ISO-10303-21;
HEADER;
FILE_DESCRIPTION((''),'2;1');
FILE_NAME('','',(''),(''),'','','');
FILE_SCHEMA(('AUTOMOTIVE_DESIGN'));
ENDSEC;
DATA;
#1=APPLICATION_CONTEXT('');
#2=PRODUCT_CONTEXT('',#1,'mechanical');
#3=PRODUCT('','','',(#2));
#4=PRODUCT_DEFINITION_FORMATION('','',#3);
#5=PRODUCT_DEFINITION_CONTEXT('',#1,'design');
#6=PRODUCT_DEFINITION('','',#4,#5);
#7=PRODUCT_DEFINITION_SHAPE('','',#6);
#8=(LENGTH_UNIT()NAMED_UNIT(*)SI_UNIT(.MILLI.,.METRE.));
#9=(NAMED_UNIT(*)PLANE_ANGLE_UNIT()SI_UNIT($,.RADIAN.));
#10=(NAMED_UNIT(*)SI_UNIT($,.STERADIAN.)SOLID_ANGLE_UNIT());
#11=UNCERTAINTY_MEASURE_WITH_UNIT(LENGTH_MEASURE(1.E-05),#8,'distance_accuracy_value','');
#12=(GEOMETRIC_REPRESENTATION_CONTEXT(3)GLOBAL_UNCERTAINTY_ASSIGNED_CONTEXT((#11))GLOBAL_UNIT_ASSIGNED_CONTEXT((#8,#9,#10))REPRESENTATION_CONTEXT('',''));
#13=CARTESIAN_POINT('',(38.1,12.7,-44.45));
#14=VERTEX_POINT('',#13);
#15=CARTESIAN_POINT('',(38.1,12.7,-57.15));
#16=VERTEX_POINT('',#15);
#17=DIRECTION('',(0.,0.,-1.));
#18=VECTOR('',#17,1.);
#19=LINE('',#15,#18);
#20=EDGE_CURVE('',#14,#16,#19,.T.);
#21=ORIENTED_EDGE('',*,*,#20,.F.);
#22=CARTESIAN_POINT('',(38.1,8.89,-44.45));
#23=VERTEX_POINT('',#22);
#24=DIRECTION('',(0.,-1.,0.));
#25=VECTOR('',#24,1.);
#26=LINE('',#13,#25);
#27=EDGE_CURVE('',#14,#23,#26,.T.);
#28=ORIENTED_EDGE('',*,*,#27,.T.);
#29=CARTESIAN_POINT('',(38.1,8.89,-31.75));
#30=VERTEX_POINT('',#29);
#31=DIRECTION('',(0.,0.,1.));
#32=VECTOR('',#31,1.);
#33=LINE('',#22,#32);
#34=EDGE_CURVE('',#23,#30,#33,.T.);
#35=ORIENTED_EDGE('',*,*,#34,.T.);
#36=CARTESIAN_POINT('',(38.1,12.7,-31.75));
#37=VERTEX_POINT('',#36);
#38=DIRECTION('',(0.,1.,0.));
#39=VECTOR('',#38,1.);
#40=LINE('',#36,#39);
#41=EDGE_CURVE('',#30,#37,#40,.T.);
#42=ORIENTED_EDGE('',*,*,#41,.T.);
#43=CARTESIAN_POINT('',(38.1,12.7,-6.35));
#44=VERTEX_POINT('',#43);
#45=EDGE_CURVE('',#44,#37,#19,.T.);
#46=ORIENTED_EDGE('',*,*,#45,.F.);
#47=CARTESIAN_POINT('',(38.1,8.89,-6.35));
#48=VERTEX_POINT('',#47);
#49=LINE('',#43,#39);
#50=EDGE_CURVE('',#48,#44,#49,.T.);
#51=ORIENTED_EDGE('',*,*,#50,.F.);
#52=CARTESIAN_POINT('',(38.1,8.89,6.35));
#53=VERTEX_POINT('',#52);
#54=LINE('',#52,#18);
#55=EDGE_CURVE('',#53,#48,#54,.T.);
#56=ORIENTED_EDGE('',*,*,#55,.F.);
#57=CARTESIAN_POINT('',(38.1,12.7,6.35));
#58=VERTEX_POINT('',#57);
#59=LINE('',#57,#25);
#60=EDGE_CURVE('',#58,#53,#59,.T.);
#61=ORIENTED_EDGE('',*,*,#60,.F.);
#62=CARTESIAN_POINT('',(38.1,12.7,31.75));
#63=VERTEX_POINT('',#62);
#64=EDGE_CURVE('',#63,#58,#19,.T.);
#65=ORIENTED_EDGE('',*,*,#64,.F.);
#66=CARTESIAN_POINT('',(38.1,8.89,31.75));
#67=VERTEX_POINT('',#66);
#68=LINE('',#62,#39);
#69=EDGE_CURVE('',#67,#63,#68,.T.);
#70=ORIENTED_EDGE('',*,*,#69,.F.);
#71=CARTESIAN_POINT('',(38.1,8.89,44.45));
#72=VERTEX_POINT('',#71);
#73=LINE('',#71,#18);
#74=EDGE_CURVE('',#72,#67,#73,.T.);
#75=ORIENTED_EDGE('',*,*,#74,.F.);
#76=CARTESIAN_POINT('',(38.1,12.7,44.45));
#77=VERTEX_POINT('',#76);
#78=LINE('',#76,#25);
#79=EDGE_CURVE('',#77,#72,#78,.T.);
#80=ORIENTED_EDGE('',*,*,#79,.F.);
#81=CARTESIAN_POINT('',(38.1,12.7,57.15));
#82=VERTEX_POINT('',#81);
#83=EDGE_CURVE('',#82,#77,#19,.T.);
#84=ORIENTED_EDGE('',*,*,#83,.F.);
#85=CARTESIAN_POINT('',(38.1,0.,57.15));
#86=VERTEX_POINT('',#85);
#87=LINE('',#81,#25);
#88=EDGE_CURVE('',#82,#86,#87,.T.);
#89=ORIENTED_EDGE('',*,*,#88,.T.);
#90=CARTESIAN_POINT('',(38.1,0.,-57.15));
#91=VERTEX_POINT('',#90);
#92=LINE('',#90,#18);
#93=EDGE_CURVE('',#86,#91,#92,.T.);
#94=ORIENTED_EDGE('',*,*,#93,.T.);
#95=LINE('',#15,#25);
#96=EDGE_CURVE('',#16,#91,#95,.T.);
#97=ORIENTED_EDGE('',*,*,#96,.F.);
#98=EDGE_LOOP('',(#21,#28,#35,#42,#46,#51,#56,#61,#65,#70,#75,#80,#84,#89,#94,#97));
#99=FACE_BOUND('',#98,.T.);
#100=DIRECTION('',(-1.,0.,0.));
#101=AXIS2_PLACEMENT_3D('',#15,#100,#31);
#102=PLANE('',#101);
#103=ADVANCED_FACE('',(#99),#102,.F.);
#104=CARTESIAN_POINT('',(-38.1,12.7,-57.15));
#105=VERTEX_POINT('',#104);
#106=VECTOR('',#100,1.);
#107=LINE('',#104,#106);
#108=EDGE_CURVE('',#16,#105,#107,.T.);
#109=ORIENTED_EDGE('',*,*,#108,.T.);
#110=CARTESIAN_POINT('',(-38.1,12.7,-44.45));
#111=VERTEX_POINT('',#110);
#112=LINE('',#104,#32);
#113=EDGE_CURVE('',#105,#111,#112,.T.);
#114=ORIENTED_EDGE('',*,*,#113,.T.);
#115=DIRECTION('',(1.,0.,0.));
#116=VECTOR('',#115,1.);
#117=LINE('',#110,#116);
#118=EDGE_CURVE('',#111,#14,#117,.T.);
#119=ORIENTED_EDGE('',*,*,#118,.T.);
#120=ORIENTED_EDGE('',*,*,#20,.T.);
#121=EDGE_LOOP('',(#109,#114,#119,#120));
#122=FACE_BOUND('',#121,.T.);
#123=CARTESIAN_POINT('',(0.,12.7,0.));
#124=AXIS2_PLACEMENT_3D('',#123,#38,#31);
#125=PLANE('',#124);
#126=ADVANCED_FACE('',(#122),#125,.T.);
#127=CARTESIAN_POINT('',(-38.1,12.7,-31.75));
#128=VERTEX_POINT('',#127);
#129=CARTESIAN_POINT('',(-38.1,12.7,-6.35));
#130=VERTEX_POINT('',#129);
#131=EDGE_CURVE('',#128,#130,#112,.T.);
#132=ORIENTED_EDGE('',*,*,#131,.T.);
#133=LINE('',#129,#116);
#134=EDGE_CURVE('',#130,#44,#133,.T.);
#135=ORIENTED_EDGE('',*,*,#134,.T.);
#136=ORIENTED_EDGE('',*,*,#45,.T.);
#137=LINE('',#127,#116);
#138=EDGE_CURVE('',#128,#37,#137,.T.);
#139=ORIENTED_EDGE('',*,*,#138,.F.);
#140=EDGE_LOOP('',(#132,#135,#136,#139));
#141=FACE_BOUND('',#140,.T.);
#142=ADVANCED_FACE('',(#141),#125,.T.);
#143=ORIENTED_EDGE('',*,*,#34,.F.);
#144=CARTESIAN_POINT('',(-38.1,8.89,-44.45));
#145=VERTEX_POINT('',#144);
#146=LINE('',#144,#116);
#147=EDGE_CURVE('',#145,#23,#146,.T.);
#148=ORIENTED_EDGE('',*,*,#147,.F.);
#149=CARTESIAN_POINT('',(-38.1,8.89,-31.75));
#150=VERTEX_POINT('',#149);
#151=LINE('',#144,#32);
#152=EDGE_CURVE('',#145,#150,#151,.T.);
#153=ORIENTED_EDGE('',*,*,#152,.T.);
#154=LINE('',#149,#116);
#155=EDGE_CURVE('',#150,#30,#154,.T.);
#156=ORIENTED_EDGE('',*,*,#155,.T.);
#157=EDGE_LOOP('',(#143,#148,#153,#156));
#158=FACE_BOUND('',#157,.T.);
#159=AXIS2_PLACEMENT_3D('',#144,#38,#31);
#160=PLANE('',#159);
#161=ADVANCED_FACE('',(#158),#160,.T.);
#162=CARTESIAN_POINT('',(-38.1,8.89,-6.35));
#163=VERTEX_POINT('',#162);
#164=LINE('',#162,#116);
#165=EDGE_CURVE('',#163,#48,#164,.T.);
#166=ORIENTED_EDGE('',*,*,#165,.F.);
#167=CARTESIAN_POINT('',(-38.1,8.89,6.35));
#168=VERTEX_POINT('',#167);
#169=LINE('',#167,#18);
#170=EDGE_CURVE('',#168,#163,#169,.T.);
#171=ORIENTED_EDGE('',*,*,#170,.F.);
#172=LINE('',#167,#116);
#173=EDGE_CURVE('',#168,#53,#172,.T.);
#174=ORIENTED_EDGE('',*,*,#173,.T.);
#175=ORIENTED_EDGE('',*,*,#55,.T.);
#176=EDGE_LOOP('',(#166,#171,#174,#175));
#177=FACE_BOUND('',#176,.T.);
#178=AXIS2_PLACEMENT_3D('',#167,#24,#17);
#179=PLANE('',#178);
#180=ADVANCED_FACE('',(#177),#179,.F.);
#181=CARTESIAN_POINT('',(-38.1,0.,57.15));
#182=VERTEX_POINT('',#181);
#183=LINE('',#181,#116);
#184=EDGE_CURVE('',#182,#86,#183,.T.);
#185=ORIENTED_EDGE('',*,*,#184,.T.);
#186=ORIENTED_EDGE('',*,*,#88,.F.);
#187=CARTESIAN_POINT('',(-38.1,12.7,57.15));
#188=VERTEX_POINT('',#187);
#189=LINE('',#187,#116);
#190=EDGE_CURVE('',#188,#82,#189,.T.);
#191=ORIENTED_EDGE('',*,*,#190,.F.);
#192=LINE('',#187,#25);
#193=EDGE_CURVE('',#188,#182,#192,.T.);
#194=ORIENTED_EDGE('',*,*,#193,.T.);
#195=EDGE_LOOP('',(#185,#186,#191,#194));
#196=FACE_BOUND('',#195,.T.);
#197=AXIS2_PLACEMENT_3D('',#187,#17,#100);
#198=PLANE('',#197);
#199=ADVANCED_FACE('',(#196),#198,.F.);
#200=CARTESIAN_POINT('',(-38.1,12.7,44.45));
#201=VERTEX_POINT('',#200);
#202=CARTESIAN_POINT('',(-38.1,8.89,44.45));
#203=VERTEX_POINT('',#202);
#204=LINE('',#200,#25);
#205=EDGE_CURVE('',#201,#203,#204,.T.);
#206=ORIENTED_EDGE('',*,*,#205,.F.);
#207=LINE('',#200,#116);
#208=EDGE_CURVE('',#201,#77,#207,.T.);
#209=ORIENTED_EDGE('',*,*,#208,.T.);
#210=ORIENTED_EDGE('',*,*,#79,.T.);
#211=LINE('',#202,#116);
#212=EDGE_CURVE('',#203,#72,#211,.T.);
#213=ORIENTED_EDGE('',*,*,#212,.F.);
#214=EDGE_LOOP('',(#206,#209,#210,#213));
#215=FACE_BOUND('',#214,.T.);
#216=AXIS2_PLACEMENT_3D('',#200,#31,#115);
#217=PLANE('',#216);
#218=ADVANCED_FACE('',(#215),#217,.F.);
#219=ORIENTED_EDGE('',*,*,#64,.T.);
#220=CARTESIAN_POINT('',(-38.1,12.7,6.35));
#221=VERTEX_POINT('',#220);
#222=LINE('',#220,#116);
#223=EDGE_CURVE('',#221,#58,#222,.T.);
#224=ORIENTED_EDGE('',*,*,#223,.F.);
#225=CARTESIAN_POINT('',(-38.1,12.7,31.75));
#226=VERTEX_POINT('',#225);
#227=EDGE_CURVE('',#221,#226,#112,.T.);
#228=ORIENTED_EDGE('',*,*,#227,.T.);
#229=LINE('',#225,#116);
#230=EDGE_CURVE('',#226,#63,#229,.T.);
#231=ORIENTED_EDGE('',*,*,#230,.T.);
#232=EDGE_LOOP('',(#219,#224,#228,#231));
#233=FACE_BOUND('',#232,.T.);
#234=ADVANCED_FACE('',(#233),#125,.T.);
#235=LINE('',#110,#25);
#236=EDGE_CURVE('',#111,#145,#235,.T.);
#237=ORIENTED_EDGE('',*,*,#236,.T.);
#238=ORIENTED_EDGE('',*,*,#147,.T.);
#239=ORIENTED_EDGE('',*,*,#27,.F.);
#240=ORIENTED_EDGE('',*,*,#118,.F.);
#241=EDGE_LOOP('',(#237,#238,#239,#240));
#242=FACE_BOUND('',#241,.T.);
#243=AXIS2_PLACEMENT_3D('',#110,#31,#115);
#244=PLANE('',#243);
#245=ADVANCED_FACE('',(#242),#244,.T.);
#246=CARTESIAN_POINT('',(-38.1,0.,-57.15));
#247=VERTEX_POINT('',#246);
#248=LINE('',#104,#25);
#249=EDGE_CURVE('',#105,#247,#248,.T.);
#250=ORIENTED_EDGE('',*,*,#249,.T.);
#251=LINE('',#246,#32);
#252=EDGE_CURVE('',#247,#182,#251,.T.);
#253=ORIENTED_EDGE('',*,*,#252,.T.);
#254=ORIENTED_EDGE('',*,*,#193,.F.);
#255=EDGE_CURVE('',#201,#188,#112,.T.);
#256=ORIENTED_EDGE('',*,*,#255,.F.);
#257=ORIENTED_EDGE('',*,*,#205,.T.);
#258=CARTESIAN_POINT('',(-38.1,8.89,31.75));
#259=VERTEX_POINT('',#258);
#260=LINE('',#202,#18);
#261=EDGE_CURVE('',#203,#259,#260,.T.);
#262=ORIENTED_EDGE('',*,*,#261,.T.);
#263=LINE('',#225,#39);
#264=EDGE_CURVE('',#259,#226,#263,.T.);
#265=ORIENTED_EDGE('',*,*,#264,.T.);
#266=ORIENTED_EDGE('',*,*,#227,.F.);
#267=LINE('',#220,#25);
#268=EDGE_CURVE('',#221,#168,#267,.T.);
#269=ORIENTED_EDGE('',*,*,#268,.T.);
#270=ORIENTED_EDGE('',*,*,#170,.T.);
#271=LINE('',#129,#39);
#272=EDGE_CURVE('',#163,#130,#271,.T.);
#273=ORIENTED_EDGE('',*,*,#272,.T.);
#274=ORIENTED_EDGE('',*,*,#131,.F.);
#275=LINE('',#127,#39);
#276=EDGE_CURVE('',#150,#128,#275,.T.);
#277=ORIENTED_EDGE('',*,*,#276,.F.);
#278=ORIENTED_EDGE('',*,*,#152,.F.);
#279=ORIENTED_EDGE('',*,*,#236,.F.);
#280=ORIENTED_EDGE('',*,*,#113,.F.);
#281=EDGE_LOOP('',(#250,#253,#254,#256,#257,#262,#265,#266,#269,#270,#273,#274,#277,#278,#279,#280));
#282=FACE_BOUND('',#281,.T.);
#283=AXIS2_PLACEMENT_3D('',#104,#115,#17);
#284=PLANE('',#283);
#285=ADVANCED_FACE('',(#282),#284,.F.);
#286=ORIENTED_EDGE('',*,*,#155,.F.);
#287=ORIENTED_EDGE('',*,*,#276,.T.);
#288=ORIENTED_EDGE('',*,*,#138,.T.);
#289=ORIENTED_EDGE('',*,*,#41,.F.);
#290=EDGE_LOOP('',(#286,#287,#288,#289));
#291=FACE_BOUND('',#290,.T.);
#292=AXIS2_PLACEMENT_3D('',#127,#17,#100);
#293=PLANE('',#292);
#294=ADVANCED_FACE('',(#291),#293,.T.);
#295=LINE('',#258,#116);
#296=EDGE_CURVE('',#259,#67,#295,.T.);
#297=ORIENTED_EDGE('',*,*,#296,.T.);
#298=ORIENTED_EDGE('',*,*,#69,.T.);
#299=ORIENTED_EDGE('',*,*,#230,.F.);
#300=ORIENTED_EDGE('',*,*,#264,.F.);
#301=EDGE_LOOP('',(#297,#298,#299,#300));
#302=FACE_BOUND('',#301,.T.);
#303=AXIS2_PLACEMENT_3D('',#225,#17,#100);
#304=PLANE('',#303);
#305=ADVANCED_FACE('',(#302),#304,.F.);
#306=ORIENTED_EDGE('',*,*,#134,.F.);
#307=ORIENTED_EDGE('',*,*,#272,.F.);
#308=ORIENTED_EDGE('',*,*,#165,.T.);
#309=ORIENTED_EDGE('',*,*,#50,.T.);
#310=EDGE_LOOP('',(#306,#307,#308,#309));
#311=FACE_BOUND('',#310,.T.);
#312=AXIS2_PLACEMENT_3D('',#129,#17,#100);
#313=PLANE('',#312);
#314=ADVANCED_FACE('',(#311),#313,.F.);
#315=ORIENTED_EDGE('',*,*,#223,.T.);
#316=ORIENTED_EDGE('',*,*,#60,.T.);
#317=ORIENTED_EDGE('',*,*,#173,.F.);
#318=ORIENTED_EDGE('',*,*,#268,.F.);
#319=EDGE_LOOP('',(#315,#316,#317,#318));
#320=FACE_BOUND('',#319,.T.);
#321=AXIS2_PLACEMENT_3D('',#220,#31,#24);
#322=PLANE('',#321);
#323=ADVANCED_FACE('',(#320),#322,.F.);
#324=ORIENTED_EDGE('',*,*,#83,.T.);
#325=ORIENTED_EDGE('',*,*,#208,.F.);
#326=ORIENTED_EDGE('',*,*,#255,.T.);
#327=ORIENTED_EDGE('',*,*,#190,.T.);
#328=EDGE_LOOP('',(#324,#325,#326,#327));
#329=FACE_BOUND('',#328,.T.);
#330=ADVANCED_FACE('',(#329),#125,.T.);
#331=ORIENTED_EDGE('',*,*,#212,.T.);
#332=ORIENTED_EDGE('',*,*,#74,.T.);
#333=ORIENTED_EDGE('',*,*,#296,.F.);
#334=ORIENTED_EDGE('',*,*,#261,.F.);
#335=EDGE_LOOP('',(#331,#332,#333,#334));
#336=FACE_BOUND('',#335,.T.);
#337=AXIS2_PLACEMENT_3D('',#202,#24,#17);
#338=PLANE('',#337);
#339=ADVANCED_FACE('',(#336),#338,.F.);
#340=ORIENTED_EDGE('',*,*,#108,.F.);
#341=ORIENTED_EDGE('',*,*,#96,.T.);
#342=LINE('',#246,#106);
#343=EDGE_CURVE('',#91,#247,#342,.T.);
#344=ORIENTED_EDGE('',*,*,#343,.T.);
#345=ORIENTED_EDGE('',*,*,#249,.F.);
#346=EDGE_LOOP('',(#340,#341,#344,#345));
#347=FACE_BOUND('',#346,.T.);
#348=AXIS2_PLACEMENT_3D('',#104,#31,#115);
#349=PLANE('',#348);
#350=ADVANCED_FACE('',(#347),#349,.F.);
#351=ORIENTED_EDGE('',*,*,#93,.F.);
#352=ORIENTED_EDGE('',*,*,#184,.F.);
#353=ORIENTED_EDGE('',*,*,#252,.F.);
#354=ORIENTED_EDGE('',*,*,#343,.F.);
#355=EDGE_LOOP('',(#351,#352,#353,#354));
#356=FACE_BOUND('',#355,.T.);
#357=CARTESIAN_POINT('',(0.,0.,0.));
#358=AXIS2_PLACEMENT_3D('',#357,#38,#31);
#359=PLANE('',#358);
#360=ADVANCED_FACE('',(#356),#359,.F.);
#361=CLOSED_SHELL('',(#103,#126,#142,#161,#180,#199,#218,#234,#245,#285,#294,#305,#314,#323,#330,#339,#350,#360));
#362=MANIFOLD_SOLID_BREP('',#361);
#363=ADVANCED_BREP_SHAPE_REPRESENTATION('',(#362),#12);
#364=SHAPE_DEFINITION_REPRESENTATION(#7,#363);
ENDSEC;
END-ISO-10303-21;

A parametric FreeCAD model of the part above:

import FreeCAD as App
import Part
import Sketcher
Q = App.Units.Quantity

doc = App.newDocument("Part")
body = doc.addObject("PartDesign::Body", "Body")

sketch1 = body.newObject("Sketcher::SketchObject", "Sketch")
sketch1.AttachmentSupport = (doc.getObject("XZ_Plane"), [""])
sketch1.MapMode = "FlatFace"
sketch1.addGeometry([
    Part.LineSegment(App.Vector(-38, -57, 0), App.Vector(-38, 57, 0)),
    Part.LineSegment(App.Vector(-38, 57, 0), App.Vector(38, 57, 0)),
    Part.LineSegment(App.Vector(38, 57, 0), App.Vector(38, -57, 0)),
    Part.LineSegment(App.Vector(38, -57, 0), App.Vector(-38, -57, 0)),
], False)
sketch1.addConstraint([
    Sketcher.Constraint("Coincident", 0, 2, 1, 1),
    Sketcher.Constraint("Coincident", 1, 2, 2, 1),
    Sketcher.Constraint("Coincident", 2, 2, 3, 1),
    Sketcher.Constraint("Coincident", 3, 2, 0, 1),
    Sketcher.Constraint("Vertical", 0),
    Sketcher.Constraint("Horizontal", 1),
    Sketcher.Constraint("Vertical", 2),
    Sketcher.Constraint("Horizontal", 3),
    Sketcher.Constraint("Symmetric", 0, 2, 2, 2, -1, 1),
    Sketcher.Constraint("DistanceX", 1, 1, 1, 2, Q("3 in")),
    Sketcher.Constraint("DistanceY", 0, 1, 0, 2, Q("4.5 in")),
])
pad1 = body.newObject("PartDesign::Pad", "Pad")
pad1.Profile = sketch1
pad1.Length = Q("0.5 in")
pad1.Reversed = True

sketch2 = body.newObject("Sketcher::SketchObject", "Sketch001")
sketch2.AttachmentSupport = (doc.getObject("YZ_Plane"), [""])
sketch2.MapMode = "FlatFace"
sketch2.AttachmentOffset = App.Placement(App.Vector(0, 0, 1.5 * 25.4), App.Rotation())
sketch2.addGeometry([
    Part.LineSegment(App.Vector(12.7, 44.5, 0), App.Vector(8.9, 44.5, 0)),
    Part.LineSegment(App.Vector(8.9, 44.5, 0), App.Vector(8.9, 31.8, 0)),
    Part.LineSegment(App.Vector(8.9, 31.8, 0), App.Vector(12.7, 31.8, 0)),
    Part.LineSegment(App.Vector(12.7, 31.8, 0), App.Vector(12.7, 44.5, 0)),
], False)
sketch2.addConstraint([
    Sketcher.Constraint("Coincident", 0, 2, 1, 1),
    Sketcher.Constraint("Coincident", 1, 2, 2, 1),
    Sketcher.Constraint("Coincident", 2, 2, 3, 1),
    Sketcher.Constraint("Coincident", 3, 2, 0, 1),
    Sketcher.Constraint("Horizontal", 0),
    Sketcher.Constraint("Vertical", 1),
    Sketcher.Constraint("Horizontal", 2),
    Sketcher.Constraint("Vertical", 3),
    Sketcher.Constraint("DistanceY", 1, 2, 1, 1, Q("0.5 in")),
    Sketcher.Constraint("DistanceX", 0, 2, 0, 1, Q("0.15 in")),
    Sketcher.Constraint("DistanceX", -1, 1, 2, 2, Q("0.5 in")),
    Sketcher.Constraint("DistanceY", -1, 1, 0, 2, Q("1.75 in")),
])
pocket1 = body.newObject("PartDesign::Pocket", "Pocket")
pocket1.Profile = sketch2
pocket1.Length = Q("3 in")
doc.recompute()

mirrored = body.newObject("PartDesign::Mirrored", "Mirrored")
mirrored.Originals = [pocket1]
mirrored.MirrorPlane = (doc.getObject("XY_Plane"), [""])
body.Tip = mirrored

sketch3 = body.newObject("Sketcher::SketchObject", "Sketch002")
sketch3.AttachmentSupport = (doc.getObject("YZ_Plane"), [""])
sketch3.MapMode = "FlatFace"
sketch3.AttachmentOffset = App.Placement(App.Vector(0, 0, 1.5 * 25.4), App.Rotation())
sketch3.addGeometry([
    Part.LineSegment(App.Vector(12.7, 6.3, 0), App.Vector(8.9, 6.3, 0)),
    Part.LineSegment(App.Vector(8.9, 6.3, 0), App.Vector(8.9, -6.3, 0)),
    Part.LineSegment(App.Vector(8.9, -6.3, 0), App.Vector(12.7, -6.3, 0)),
    Part.LineSegment(App.Vector(12.7, -6.3, 0), App.Vector(12.7, 6.3, 0)),
], False)
sketch3.addConstraint([
    Sketcher.Constraint("Coincident", 0, 2, 1, 1),
    Sketcher.Constraint("Coincident", 1, 2, 2, 1),
    Sketcher.Constraint("Coincident", 2, 2, 3, 1),
    Sketcher.Constraint("Coincident", 3, 2, 0, 1),
    Sketcher.Constraint("Horizontal", 0),
    Sketcher.Constraint("Vertical", 1),
    Sketcher.Constraint("Horizontal", 2),
    Sketcher.Constraint("Vertical", 3),
    Sketcher.Constraint("DistanceY", 1, 2, 1, 1, Q("0.5 in")),
    Sketcher.Constraint("DistanceX", 0, 2, 0, 1, Q("0.15 in")),
    Sketcher.Constraint("DistanceX", -1, 1, 2, 2, Q("0.5 in")),
    Sketcher.Constraint("DistanceY", -1, 1, 0, 2, Q("0.25 in")),
])
pocket2 = body.newObject("PartDesign::Pocket", "Pocket001")
pocket2.Profile = sketch3
pocket2.Length = Q("3 in")

doc.recompute()
